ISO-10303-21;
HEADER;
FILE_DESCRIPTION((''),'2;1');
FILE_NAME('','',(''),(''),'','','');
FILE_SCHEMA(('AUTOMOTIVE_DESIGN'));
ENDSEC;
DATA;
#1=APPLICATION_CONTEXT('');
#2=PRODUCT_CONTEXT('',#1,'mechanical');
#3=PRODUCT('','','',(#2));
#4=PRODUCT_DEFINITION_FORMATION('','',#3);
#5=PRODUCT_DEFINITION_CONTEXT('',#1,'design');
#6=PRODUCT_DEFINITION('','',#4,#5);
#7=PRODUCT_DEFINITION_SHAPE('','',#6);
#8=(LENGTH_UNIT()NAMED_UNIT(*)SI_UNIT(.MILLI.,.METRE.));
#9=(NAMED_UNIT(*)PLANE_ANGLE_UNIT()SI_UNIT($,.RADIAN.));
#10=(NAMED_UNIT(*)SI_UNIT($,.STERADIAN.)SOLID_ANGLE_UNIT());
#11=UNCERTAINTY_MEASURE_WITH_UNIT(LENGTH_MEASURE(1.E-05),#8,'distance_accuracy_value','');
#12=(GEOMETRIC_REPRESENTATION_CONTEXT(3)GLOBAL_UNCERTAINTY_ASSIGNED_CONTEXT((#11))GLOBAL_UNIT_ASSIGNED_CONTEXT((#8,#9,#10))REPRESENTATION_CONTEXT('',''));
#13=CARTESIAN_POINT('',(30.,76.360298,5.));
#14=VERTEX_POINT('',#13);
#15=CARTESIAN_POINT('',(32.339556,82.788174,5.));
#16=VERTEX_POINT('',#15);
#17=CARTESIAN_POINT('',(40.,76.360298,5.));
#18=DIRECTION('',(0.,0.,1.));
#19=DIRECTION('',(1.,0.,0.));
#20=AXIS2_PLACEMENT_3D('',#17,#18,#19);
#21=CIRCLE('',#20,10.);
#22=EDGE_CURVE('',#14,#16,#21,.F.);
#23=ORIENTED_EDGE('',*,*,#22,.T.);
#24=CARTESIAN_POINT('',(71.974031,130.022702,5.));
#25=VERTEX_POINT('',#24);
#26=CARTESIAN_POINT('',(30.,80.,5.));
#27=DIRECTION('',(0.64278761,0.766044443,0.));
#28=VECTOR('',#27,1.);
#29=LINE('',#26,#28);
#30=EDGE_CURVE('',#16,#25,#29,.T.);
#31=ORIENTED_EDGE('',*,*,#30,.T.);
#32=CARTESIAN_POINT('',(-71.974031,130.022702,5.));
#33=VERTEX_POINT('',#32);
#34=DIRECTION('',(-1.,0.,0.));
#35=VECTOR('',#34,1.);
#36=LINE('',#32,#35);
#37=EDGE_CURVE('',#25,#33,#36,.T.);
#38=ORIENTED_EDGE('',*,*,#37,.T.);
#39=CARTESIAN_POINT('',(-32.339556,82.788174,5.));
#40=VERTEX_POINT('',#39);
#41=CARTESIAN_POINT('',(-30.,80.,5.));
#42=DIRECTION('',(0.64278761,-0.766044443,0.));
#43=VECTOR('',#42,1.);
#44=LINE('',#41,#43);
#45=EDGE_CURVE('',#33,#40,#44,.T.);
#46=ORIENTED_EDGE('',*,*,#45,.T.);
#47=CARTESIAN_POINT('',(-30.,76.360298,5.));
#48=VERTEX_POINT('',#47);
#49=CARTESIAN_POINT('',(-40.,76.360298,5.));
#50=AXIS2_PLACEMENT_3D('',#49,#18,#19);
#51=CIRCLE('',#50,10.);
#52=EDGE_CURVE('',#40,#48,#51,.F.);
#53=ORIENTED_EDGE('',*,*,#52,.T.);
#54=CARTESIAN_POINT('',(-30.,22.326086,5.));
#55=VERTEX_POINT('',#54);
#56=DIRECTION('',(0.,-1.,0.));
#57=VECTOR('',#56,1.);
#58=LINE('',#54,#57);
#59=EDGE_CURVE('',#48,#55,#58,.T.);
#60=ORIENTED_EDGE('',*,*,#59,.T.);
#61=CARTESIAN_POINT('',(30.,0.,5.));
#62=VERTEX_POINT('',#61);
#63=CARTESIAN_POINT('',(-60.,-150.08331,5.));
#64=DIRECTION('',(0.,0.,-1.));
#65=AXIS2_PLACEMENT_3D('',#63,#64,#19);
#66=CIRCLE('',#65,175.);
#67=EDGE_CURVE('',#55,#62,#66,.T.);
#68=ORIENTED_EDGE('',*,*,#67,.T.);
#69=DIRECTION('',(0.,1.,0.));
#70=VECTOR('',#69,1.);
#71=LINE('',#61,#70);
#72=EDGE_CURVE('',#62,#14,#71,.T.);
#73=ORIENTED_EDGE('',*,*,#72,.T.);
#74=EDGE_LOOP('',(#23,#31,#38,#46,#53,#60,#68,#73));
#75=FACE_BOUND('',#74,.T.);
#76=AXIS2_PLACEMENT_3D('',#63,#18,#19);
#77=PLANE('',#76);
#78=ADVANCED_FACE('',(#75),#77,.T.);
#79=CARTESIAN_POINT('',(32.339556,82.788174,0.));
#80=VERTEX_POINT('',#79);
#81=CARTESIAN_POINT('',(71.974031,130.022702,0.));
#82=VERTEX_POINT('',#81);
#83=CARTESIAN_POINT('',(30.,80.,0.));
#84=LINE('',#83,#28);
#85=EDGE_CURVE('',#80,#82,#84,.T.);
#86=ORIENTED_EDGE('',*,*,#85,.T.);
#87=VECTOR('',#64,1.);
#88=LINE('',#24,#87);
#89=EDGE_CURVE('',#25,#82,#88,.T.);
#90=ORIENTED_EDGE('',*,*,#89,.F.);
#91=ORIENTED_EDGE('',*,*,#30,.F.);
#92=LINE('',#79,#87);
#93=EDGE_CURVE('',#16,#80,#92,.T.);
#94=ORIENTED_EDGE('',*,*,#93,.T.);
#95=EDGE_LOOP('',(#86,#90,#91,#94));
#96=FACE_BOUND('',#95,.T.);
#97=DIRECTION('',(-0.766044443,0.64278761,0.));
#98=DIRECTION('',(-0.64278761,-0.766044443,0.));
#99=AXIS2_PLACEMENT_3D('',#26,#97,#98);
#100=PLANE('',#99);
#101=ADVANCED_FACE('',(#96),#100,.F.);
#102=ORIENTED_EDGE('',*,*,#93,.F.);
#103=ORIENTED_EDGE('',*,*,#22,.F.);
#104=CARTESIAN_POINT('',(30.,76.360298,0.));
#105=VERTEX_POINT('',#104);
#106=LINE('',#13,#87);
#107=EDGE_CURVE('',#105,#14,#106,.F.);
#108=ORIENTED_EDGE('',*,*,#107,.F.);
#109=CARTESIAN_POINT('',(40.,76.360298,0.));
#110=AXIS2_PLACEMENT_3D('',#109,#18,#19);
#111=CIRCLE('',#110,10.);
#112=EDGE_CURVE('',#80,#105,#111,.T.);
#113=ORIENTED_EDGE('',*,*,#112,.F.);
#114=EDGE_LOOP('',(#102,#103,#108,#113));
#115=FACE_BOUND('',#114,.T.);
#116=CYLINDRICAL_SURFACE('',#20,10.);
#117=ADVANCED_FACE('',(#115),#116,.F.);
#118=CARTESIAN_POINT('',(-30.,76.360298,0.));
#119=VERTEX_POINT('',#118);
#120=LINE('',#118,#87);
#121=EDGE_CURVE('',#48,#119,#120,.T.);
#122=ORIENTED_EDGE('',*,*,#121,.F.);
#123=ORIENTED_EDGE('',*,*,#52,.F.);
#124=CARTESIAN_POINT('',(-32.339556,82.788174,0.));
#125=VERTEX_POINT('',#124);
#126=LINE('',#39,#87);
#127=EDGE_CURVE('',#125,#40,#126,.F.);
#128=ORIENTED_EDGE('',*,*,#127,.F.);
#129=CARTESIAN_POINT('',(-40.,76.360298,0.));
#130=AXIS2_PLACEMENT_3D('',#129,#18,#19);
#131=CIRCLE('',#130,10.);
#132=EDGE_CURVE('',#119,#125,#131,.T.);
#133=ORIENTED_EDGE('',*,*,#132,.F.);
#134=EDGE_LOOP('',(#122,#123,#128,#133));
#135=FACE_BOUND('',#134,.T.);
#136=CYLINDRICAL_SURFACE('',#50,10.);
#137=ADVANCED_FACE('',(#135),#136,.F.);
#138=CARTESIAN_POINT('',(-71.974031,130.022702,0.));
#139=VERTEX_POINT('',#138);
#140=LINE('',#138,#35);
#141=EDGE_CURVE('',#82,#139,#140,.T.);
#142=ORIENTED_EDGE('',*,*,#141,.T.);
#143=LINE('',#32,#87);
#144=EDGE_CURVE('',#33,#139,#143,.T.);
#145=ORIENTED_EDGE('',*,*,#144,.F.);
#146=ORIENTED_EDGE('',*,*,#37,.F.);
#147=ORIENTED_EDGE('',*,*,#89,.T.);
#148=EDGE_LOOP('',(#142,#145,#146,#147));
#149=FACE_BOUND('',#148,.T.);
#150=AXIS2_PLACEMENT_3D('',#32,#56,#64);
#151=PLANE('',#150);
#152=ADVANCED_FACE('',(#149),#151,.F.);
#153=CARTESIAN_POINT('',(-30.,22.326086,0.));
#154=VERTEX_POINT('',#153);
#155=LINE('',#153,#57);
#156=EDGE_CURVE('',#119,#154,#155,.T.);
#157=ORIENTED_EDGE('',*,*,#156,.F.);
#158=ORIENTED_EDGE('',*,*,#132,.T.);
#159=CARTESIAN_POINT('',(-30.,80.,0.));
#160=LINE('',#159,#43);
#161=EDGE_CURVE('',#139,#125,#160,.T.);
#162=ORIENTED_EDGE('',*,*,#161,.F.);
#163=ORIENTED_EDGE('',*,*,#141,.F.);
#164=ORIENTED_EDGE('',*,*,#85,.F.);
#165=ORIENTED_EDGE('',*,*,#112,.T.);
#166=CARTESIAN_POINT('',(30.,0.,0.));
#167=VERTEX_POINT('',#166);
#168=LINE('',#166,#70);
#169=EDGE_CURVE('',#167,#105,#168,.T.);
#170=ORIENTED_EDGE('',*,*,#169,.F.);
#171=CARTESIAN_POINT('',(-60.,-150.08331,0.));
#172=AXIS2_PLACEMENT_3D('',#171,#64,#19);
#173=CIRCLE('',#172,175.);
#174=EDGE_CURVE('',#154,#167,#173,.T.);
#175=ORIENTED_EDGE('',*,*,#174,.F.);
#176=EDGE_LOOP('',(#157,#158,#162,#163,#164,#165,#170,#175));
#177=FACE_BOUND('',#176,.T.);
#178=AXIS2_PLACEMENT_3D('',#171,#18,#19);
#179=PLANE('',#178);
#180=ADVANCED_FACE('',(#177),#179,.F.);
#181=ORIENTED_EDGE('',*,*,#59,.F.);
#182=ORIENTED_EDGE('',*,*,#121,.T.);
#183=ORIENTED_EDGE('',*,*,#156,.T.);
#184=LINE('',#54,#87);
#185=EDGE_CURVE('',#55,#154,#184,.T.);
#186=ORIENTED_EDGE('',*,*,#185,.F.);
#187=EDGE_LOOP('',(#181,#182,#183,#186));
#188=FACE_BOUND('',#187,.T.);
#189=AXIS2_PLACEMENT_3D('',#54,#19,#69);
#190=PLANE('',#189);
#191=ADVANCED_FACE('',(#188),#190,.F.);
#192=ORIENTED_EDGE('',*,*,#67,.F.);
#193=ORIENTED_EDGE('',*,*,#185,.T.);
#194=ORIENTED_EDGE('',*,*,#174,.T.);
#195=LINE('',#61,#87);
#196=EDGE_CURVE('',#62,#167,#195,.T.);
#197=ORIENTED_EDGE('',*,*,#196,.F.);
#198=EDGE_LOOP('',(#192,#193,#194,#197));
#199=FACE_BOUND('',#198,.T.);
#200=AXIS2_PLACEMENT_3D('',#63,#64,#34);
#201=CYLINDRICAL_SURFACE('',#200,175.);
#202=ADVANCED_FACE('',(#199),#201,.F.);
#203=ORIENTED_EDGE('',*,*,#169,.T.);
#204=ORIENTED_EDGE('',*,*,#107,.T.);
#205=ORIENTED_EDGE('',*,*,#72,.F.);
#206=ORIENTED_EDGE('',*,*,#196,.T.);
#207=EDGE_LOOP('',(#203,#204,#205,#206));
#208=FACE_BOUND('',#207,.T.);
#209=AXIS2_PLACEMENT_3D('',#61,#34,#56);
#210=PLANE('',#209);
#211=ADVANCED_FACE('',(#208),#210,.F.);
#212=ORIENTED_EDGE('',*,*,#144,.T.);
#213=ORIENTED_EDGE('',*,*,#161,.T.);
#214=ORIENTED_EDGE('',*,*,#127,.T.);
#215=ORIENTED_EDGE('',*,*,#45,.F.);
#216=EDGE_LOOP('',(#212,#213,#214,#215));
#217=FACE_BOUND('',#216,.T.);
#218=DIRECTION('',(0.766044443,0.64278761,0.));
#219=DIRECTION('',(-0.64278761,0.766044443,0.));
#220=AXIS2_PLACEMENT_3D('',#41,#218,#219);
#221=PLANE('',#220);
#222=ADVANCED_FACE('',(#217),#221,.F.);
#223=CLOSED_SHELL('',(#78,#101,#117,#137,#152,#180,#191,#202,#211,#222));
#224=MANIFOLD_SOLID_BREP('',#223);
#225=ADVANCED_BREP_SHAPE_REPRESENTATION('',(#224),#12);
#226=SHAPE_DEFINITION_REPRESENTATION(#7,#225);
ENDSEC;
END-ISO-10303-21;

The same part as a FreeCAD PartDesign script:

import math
import FreeCAD as App
import Part
import Sketcher

V = App.Vector
Q = App.Units.Quantity


def edges_at(feature, points):
    """Names of the edges that pass closest to the given points."""
    edges = feature.Shape.Edges
    near = lambda p: min(range(len(edges)), key=lambda i: edges[i].distToShape(Part.Vertex(*p))[0])
    return sorted({f"Edge{near(p) + 1}" for p in points})

doc = App.newDocument("Part")
body = doc.addObject("PartDesign::Body", "Body")

sketch1 = body.newObject("Sketcher::SketchObject", "Sketch")
sketch1.AttachmentSupport = (doc.getObject("XY_Plane"), [""])
sketch1.MapMode = "FlatFace"
sketch1.addGeometry(Part.LineSegment(V(30, 0, 0), V(30, 80, 0)), False)
sketch1.addGeometry(Part.LineSegment(V(30, 80, 0), V(72, 130, 0)), False)
sketch1.addGeometry(Part.LineSegment(V(72, 130, 0), V(-72, 130, 0)), False)
sketch1.addGeometry(Part.LineSegment(V(-72, 130, 0), V(-30, 80, 0)), False)
sketch1.addGeometry(Part.LineSegment(V(-30, 80, 0), V(-30, 22, 0)), False)
sketch1.addGeometry(Part.ArcOfCircle(Part.Circle(V(-60, -150, 0), V(0, 0, 1), 175), math.radians(59), math.radians(80)), False)
sketch1.addConstraint(Sketcher.Constraint("Coincident", 0, 2, 1, 1))
sketch1.addConstraint(Sketcher.Constraint("Coincident", 1, 2, 2, 1))
sketch1.addConstraint(Sketcher.Constraint("Coincident", 2, 2, 3, 1))
sketch1.addConstraint(Sketcher.Constraint("Coincident", 3, 2, 4, 1))
sketch1.addConstraint(Sketcher.Constraint("Coincident", 4, 2, 5, 2))
sketch1.addConstraint(Sketcher.Constraint("Coincident", 5, 1, 0, 1))
sketch1.addConstraint(Sketcher.Constraint("Vertical", 0))
sketch1.addConstraint(Sketcher.Constraint("Horizontal", 2))
sketch1.addConstraint(Sketcher.Constraint("Vertical", 4))
sketch1.addConstraint(Sketcher.Constraint("Symmetric", 0, 2, 3, 2, -2))
sketch1.addConstraint(Sketcher.Constraint("PointOnObject", 5, 1, -1))
sketch1.addConstraint(Sketcher.Constraint("Equal", 1, 3))
sketch1.addConstraint(Sketcher.Constraint("Radius", 5, Q("175 mm")))
sketch1.addConstraint(Sketcher.Constraint("DistanceY", 0, 1, 0, 2, Q("80 mm")))
sketch1.addConstraint(Sketcher.Constraint("Angle", 1, Q("50 deg")))
sketch1.addConstraint(Sketcher.Constraint("DistanceX", 5, 3, -1, 1, Q("60 mm")))
sketch1.addConstraint(Sketcher.Constraint("DistanceX", -1, 1, 0, 2, Q("30 mm")))
sketch1.addConstraint(Sketcher.Constraint("Distance", 1, Q("65.3 mm")))
pad1 = body.newObject("PartDesign::Pad", "Pad")
pad1.Profile = sketch1
pad1.Length = 5
doc.recompute()

fillet = body.newObject("PartDesign::Fillet", "Fillet")
fillet.Base = (pad1, edges_at(pad1, [(-30, 80, 2.5), (30, 80, 2.5)]))
fillet.Radius = 10

doc.recompute()
